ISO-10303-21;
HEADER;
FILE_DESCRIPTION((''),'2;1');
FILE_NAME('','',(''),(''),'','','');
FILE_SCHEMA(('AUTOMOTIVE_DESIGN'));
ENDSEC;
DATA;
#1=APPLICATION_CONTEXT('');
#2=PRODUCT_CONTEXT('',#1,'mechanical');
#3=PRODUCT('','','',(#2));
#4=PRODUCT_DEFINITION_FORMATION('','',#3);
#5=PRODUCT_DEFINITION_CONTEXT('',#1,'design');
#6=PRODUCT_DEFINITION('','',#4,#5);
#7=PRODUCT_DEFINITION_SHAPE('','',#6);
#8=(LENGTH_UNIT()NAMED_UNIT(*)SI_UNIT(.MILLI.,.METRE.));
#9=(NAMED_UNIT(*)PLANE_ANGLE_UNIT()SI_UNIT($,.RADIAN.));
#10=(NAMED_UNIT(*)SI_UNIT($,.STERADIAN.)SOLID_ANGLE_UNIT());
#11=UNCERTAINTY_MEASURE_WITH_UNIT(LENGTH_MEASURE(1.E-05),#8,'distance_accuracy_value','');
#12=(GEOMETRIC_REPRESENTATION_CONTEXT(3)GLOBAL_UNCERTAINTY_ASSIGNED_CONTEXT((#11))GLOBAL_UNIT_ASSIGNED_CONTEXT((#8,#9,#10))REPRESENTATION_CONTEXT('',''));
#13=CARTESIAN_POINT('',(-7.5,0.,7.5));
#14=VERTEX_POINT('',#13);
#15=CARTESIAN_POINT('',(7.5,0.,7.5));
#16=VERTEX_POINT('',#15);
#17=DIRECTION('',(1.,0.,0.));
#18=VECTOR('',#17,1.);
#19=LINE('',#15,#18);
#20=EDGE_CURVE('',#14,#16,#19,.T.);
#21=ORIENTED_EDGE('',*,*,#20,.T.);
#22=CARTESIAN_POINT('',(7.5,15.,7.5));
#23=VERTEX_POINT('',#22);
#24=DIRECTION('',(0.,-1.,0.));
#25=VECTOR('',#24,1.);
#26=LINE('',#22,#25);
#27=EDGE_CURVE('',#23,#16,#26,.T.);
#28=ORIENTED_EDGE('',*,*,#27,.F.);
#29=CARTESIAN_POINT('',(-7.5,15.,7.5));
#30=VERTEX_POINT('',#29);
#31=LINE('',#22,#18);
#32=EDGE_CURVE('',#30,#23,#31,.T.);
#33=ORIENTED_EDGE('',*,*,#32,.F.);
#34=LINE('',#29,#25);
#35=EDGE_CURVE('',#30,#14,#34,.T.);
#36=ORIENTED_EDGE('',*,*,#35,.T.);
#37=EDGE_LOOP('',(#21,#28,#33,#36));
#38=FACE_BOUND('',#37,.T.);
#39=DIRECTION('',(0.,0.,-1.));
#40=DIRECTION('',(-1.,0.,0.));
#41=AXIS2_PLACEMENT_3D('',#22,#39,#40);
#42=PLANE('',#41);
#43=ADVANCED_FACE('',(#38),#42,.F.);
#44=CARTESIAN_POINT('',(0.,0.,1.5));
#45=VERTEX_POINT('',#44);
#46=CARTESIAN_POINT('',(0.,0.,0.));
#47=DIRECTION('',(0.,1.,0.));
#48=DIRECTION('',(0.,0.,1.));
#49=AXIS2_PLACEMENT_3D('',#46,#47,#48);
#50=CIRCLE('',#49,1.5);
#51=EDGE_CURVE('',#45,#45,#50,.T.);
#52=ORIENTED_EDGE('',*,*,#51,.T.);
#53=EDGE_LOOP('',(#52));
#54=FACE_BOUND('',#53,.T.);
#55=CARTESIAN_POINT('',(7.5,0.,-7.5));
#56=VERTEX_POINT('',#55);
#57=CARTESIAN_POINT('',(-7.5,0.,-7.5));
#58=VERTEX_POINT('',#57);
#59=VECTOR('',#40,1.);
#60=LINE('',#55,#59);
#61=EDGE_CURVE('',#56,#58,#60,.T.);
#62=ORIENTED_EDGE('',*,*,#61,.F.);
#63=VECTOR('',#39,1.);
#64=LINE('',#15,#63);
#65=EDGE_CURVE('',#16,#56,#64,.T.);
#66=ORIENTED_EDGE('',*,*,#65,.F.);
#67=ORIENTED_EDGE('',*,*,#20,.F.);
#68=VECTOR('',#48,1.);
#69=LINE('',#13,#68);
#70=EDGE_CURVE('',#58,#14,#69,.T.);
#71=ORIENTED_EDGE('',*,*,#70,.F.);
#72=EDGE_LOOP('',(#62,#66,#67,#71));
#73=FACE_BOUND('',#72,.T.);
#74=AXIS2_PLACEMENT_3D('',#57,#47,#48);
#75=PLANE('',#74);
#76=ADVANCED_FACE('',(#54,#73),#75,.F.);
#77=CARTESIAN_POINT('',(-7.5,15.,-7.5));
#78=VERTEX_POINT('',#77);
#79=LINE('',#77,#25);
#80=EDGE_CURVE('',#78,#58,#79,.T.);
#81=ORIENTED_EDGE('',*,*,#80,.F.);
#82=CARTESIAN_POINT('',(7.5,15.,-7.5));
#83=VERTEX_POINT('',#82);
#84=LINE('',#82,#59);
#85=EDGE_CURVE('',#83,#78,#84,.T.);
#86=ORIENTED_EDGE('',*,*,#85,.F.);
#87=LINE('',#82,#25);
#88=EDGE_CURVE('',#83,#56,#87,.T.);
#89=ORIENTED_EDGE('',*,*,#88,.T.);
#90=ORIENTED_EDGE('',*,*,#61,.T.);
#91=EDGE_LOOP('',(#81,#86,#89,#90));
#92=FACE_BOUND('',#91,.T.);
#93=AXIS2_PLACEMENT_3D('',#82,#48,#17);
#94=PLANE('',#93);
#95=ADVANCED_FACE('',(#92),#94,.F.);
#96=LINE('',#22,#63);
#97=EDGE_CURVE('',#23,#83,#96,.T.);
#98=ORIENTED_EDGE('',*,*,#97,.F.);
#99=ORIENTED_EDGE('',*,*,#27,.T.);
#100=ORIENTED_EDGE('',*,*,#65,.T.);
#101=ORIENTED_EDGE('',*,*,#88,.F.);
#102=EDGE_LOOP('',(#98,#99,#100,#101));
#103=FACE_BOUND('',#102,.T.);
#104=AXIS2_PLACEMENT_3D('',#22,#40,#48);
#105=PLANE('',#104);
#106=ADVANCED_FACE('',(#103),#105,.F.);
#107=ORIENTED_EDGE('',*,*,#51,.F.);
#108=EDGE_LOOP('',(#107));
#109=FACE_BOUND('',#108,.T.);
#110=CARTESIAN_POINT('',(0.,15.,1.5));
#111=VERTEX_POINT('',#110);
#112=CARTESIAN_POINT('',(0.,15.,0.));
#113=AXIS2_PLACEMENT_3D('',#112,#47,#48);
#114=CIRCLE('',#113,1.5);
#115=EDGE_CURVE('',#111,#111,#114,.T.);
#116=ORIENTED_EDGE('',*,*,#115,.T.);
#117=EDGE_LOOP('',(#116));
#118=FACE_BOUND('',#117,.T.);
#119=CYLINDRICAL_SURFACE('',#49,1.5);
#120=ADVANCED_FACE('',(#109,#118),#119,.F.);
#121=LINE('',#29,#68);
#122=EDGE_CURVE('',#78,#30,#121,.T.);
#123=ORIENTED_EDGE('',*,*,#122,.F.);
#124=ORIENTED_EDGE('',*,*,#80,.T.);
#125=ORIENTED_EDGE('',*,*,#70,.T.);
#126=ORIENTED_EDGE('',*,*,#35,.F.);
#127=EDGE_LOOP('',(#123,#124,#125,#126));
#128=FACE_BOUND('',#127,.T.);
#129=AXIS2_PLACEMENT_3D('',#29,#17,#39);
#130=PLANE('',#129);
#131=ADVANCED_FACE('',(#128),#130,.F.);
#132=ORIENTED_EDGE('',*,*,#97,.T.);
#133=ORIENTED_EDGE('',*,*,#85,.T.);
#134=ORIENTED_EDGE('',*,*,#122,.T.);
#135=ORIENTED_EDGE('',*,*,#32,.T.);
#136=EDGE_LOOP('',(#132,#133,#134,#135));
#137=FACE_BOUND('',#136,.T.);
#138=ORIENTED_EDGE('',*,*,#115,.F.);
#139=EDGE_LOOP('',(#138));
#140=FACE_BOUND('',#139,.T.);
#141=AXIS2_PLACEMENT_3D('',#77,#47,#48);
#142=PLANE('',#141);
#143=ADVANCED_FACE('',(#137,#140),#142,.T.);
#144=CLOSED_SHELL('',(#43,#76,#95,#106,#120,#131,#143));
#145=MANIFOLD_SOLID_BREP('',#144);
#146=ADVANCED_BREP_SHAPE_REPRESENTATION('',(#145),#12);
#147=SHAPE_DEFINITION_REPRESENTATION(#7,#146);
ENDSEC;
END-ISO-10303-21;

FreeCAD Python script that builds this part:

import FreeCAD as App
import Part
import Sketcher
Q = App.Units.Quantity

doc = App.newDocument("Part")
body = doc.addObject("PartDesign::Body", "Body")

# Sketch on XZ plane
sketch1 = body.newObject("Sketcher::SketchObject", "Sketch")
sketch1.AttachmentSupport = (doc.getObject("XZ_Plane"), [""])
sketch1.MapMode = "FlatFace"
sketch1.addGeometry([
    Part.LineSegment(App.Vector(-8, -8, 0), App.Vector(-8, 8, 0)),
    Part.LineSegment(App.Vector(-8, 8, 0), App.Vector(8, 8, 0)),
    Part.LineSegment(App.Vector(8, 8, 0), App.Vector(8, -8, 0)),
    Part.LineSegment(App.Vector(8, -8, 0), App.Vector(-8, -8, 0)),
], False)
sketch1.addConstraint([
    Sketcher.Constraint("Coincident", 0, 2, 1, 1),
    Sketcher.Constraint("Coincident", 1, 2, 2, 1),
    Sketcher.Constraint("Coincident", 2, 2, 3, 1),
    Sketcher.Constraint("Coincident", 3, 2, 0, 1),
    Sketcher.Constraint("Vertical", 0),
    Sketcher.Constraint("Horizontal", 1),
    Sketcher.Constraint("Vertical", 2),
    Sketcher.Constraint("Horizontal", 3),
    Sketcher.Constraint("Symmetric", 0, 2, 2, 2, -1, 1),
    Sketcher.Constraint("Equal", 3, 0),
    Sketcher.Constraint("DistanceX", 1, 1, 1, 2, Q("15 mm")),
])
pad1 = body.newObject("PartDesign::Pad", "Pad")
pad1.Profile = sketch1
pad1.Length = 15
pad1.Reversed = True

# Sketch on XZ plane
sketch2 = body.newObject("Sketcher::SketchObject", "Sketch001")
sketch2.AttachmentSupport = (doc.getObject("XZ_Plane"), [""])
sketch2.MapMode = "FlatFace"
sketch2.AttachmentOffset = App.Placement(App.Vector(0, 0, -15), App.Rotation())
sketch2.addGeometry(Part.Circle(App.Vector(0, 0, 0), App.Vector(0, 0, 1), 1.5), False)
sketch2.addConstraint([
    Sketcher.Constraint("Coincident", 0, 3, -1, 1),
    Sketcher.Constraint("Diameter", 0, Q("3 mm")),
])
pocket1 = body.newObject("PartDesign::Pocket", "Pocket")
pocket1.Profile = sketch2
pocket1.Type = "ThroughAll"
pocket1.Reversed = True

doc.recompute()
